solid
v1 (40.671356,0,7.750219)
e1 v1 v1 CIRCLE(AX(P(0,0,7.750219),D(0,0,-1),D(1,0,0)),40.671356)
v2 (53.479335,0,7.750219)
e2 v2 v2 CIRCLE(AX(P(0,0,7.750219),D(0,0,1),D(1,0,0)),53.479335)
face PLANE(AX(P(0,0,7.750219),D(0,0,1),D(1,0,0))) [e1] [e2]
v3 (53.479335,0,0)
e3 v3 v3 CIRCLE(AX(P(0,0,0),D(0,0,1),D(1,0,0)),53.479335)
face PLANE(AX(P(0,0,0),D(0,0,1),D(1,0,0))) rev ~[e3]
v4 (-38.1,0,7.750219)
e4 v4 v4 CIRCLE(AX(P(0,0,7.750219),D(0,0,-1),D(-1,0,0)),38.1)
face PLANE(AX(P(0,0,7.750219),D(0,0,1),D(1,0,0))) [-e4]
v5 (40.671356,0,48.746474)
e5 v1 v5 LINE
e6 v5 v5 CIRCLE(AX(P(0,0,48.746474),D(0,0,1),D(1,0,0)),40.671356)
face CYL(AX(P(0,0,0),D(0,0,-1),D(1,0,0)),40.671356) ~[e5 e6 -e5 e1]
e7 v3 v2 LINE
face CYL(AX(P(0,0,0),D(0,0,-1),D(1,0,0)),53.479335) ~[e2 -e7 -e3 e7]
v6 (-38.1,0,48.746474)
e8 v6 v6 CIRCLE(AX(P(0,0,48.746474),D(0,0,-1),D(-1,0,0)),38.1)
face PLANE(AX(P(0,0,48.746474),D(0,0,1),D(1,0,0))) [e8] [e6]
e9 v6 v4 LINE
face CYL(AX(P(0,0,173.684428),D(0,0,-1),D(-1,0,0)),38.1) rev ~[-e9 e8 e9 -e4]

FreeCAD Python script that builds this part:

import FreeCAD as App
import Part
import Sketcher
from FreeCAD import Vector
Q = App.Units.Quantity

doc = App.newDocument("Part")
body = doc.addObject("PartDesign::Body", "Body")

sketch1 = doc.addObject("Sketcher::SketchObject", "Sketch")
body.addObject(sketch1)
sketch1.AttachmentSupport = (doc.XY_Plane, [""])
sketch1.MapMode = "FlatFace"
sketch1.addGeometry(Part.Circle(Vector(0, 0, 0), Vector(0, 0, 1), 40.671356), False)
sketch1.addConstraint(Sketcher.Constraint("Coincident", 0, 3, -1, 1))
sketch1.addConstraint(Sketcher.Constraint("Diameter", 0, Q("81.342712 mm")))
pad1 = doc.addObject("PartDesign::Pad", "Pad")
body.addObject(pad1)
pad1.Profile = sketch1
pad1.Length = 48.746474

sketch2 = doc.addObject("Sketcher::SketchObject", "Sketch001")
body.addObject(sketch2)
sketch2.AttachmentSupport = (doc.XY_Plane, [""])
sketch2.MapMode = "FlatFace"
sketch2.AttachmentOffset = App.Placement(Vector(0, 0, 48.746474), App.Rotation())
sketch2.addGeometry(Part.Circle(Vector(0, 0, 0), Vector(0, 0, 1), 38.1), False)
sketch2.addConstraint(Sketcher.Constraint("Coincident", 0, 3, -1, 1))
sketch2.addConstraint(Sketcher.Constraint("Diameter", 0, Q("3 in")))
doc.recompute()
hole = doc.addObject("PartDesign::Hole", "Hole")
body.addObject(hole)
hole.Profile = sketch2
hole.ThreadType = "None"
hole.Diameter = Q("3 in")
hole.DepthType = "ThroughAll"

sketch3 = doc.addObject("Sketcher::SketchObject", "Sketch002")
body.addObject(sketch3)
sketch3.AttachmentSupport = (doc.XY_Plane, [""])
sketch3.MapMode = "FlatFace"
sketch3.addGeometry(Part.Circle(Vector(0, 0, 0), Vector(0, 0, 1), 53.479335), False)
sketch3.addConstraint(Sketcher.Constraint("Coincident", 0, 3, -1, 1))
sketch3.addConstraint(Sketcher.Constraint("Diameter", 0, Q("106.95867 mm")))
pad2 = doc.addObject("PartDesign::Pad", "Pad001")
body.addObject(pad2)
pad2.Profile = sketch3
pad2.Length = 7.750219

doc.recompute()
